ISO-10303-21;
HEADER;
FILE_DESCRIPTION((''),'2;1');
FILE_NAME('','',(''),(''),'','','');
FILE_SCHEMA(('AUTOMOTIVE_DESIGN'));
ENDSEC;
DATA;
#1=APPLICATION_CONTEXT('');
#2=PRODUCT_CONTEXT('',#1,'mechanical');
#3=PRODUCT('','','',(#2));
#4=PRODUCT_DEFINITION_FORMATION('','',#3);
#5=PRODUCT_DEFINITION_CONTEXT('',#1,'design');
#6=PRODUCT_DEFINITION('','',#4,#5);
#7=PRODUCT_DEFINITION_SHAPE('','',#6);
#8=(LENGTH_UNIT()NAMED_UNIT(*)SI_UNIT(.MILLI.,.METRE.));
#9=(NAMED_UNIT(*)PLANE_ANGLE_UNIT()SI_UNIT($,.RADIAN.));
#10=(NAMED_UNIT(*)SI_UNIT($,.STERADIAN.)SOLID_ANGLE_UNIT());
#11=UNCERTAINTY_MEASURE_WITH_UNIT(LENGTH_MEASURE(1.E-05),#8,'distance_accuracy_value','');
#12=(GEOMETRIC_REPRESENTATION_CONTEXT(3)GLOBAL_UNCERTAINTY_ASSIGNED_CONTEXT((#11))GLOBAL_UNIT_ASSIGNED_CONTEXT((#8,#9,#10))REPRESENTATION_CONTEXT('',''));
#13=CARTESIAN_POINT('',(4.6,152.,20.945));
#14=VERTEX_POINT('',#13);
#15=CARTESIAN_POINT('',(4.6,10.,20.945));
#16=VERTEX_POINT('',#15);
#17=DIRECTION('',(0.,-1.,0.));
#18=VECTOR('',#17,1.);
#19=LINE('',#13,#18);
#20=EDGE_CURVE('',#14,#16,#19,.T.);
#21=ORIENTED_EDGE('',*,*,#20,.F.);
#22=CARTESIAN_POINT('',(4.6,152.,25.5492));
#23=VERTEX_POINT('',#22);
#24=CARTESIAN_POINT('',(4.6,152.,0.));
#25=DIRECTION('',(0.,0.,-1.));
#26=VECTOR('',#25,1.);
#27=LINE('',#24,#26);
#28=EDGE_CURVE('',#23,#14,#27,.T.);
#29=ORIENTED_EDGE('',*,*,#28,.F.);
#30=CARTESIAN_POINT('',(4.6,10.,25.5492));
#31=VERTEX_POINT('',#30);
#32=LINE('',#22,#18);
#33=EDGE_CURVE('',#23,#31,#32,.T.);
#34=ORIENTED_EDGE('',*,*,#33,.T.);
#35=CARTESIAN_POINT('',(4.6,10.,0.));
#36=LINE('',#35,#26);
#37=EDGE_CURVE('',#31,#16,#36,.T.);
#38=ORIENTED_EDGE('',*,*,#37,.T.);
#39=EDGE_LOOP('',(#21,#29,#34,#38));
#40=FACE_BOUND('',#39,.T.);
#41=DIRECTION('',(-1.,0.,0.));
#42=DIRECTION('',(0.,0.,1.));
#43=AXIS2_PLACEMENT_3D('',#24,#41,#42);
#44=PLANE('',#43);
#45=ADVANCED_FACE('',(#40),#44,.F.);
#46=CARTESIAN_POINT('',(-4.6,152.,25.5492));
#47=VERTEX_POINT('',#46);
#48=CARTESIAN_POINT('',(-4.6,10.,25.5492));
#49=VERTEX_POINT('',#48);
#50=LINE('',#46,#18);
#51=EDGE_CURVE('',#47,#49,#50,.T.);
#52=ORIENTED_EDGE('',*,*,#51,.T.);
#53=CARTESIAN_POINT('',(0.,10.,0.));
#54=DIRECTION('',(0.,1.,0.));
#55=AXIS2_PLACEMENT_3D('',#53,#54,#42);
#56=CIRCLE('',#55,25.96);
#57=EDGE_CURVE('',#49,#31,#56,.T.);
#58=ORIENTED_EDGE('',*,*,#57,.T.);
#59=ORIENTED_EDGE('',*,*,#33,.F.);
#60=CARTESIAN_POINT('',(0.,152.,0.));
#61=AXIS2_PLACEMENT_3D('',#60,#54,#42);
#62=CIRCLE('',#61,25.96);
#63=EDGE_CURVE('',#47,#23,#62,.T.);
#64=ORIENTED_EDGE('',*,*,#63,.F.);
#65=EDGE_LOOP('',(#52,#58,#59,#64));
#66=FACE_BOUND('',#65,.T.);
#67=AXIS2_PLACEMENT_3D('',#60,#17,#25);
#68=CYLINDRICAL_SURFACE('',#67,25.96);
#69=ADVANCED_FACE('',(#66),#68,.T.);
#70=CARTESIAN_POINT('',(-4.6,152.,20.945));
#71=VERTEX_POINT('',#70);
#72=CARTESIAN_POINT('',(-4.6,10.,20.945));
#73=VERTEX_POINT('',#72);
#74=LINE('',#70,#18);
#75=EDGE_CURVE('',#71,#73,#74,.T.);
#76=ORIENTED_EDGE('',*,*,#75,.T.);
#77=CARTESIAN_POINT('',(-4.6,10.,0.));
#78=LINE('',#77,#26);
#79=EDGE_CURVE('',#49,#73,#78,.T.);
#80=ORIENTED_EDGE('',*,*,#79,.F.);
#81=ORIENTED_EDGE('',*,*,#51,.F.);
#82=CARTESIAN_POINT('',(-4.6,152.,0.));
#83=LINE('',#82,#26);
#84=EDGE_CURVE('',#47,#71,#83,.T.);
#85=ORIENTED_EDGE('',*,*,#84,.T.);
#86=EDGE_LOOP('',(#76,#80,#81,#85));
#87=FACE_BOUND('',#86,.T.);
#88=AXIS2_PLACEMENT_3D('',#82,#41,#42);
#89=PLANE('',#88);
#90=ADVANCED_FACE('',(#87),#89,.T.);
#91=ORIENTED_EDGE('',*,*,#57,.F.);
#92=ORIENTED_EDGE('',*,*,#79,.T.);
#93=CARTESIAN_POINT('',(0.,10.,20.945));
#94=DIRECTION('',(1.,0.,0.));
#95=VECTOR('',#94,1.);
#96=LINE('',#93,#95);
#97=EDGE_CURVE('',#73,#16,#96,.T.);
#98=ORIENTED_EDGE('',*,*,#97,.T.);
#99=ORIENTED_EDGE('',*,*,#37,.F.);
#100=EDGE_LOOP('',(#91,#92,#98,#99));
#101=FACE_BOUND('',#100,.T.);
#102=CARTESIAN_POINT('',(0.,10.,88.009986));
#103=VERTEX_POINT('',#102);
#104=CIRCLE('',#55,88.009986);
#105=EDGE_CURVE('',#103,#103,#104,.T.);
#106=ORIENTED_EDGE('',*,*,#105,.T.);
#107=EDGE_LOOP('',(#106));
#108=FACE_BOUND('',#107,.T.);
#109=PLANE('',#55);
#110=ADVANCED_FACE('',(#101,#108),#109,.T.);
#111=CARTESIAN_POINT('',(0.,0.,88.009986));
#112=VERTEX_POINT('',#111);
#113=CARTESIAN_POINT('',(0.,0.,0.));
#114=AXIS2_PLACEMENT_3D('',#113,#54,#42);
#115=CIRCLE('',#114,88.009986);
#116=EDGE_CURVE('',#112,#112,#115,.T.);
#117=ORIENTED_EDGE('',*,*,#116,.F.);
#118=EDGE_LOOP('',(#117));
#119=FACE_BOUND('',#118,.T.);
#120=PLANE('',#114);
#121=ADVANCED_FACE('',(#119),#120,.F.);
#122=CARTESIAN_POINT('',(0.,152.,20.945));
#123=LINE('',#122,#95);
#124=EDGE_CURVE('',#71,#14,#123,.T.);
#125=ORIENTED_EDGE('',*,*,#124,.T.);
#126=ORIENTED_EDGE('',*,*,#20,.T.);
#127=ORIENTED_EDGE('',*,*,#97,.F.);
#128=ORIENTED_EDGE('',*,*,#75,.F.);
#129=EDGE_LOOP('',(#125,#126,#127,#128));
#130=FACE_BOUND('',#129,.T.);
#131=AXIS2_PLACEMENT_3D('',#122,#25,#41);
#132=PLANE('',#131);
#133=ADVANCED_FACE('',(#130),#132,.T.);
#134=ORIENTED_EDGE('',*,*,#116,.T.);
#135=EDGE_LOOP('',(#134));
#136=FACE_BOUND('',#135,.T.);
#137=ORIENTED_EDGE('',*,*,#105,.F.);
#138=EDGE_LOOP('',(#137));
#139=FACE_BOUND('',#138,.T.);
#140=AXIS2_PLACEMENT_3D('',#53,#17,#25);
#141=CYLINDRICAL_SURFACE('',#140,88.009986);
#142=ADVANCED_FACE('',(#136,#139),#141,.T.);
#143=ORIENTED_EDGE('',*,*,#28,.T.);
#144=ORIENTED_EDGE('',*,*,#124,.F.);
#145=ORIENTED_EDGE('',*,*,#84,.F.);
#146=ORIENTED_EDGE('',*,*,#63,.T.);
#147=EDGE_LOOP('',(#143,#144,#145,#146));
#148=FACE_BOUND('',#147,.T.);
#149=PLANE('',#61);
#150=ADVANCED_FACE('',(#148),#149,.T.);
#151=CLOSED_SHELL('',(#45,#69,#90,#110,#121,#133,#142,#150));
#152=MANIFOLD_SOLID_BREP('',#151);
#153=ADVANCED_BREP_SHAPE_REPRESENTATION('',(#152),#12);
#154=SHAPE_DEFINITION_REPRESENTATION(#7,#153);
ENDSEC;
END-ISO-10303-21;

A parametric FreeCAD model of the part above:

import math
import FreeCAD as App
import Part
import Sketcher

V = App.Vector

doc = App.newDocument("Part")
body = doc.addObject("PartDesign::Body", "Body")

# Sketch on XZ plane
sketch1 = doc.addObject("Sketcher::SketchObject", "Sketch")
body.addObject(sketch1)
sketch1.AttachmentSupport = (doc.XZ_Plane, [""])
sketch1.MapMode = "FlatFace"
sketch1.addGeometry(Part.Circle(V(0, 0, 0), V(0, 0, 1), 88), False)
sketch1.addConstraint([
    Sketcher.Constraint("Coincident", 0, 3, -1, 1),
    Sketcher.Constraint("Diameter", 0, 176.019973),
])
pad1 = doc.addObject("PartDesign::Pad", "Pad")
body.addObject(pad1)
pad1.Profile = sketch1
pad1.Length = 10
pad1.Reversed = True

# Sketch on XZ plane
sketch2 = doc.addObject("Sketcher::SketchObject", "Sketch001")
body.addObject(sketch2)
sketch2.AttachmentSupport = (doc.XZ_Plane, [""])
sketch2.MapMode = "FlatFace"
sketch2.AttachmentOffset = App.Placement(V(0, 0, -10), App.Rotation())
sketch2.addGeometry([
    Part.LineSegment(V(-4.6, 20.9, 0), V(-4.6, 25.5, 0)),
    Part.ArcOfCircle(Part.Circle(V(0, 0, 0), V(0, 0, 1), 26), math.radians(80), math.radians(100)),
    Part.LineSegment(V(4.6, 25.5, 0), V(4.6, 20.9, 0)),
    Part.LineSegment(V(4.6, 20.9, 0), V(-4.6, 20.9, 0)),
], False)
sketch2.addConstraint([
    Sketcher.Constraint("Coincident", 0, 2, 1, 2),
    Sketcher.Constraint("Coincident", 1, 1, 2, 1),
    Sketcher.Constraint("Coincident", 2, 2, 3, 1),
    Sketcher.Constraint("Coincident", 3, 2, 0, 1),
    Sketcher.Constraint("Vertical", 0),
    Sketcher.Constraint("Vertical", 2),
    Sketcher.Constraint("Horizontal", 3),
    Sketcher.Constraint("Coincident", 1, 3, -1, 1),
    Sketcher.Constraint("Horizontal", 0, 2, 1, 1),
    Sketcher.Constraint("Radius", 1, 25.96),
    Sketcher.Constraint("DistanceX", 3, 2, 3, 1, 9.2),
    Sketcher.Constraint("DistanceY", 0, 1, 0, 2, 4.6042),
])
pad2 = doc.addObject("PartDesign::Pad", "Pad001")
body.addObject(pad2)
pad2.Profile = sketch2
pad2.Length = 142
pad2.Reversed = True

doc.recompute()
